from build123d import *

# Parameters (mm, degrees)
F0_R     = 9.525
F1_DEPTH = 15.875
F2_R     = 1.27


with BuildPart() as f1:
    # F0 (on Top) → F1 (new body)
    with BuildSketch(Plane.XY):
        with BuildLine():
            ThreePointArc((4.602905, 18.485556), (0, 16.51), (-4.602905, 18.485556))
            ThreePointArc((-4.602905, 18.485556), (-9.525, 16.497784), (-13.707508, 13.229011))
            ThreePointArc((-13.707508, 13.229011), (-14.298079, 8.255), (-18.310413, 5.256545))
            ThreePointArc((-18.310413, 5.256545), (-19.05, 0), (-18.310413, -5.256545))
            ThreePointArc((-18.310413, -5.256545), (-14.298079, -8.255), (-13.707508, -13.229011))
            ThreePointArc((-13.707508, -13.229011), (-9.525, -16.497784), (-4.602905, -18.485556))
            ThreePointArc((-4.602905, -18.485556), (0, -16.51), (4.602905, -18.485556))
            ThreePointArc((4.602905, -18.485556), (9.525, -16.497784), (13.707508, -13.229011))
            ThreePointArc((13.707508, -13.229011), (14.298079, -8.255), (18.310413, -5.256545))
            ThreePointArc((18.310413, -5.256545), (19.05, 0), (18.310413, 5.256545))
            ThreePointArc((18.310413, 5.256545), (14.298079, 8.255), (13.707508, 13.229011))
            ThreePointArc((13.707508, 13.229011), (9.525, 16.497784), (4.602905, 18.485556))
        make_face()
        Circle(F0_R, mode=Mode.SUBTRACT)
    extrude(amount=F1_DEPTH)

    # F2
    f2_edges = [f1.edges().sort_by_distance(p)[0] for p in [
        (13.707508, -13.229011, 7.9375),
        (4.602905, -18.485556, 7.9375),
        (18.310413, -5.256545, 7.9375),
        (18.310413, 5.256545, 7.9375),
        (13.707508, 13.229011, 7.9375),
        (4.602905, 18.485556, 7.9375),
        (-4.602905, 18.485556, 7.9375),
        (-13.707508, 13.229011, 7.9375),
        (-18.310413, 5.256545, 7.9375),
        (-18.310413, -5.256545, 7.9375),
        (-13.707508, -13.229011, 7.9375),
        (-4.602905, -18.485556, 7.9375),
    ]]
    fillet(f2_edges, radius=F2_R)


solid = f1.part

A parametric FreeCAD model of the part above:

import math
import FreeCAD as App
import Part
import Sketcher
Q = App.Units.Quantity


def edges_at(feature, points):
    """Names of the edges that pass closest to the given points."""
    edges = feature.Shape.Edges
    near = lambda p: min(range(len(edges)), key=lambda i: edges[i].distToShape(Part.Vertex(*p))[0])
    return sorted({f"Edge{near(p) + 1}" for p in points})

doc = App.newDocument("Part")
params = doc.addObject("Spreadsheet::Sheet", "Params")
for row, (alias, value) in enumerate([
    ("sketch1_diameter", "0.75 in"),
    ("sketch1_radius", "0.2499999 in"),
    ("pad1_length", "0.625 in"),
    ("fillet_radius", "0.05 in"),
], start=1):
    params.set(f"A{row}", alias)
    params.set(f"B{row}", "=" + value)
    params.setAlias(f"B{row}", alias)

body = doc.addObject("PartDesign::Body", "Body")

# Sketch on XY plane
sketch1 = body.newObject("Sketcher::SketchObject", "Sketch")
sketch1.AttachmentSupport = (doc.getObject("XY_Plane"), [""])
sketch1.MapMode = "FlatFace"
sketch1.addGeometry([
    Part.ArcOfCircle(Part.Circle(App.Vector(0, 23, 0), App.Vector(0, 0, 1), 6), math.radians(-136), math.radians(-44)),  # 0
    Part.ArcOfCircle(Part.Circle(App.Vector(0, 0, 0), App.Vector(0, 0, 1), 19), math.radians(104), math.radians(136)),  # 1
    Part.ArcOfCircle(Part.Circle(App.Vector(-20, 11, 0), App.Vector(0, 0, 1), 6), math.radians(-76), math.radians(16)),  # 2
    Part.ArcOfCircle(Part.Circle(App.Vector(0, 0, 0), App.Vector(0, 0, 1), 19), math.radians(164), math.radians(196)),  # 3
    Part.ArcOfCircle(Part.Circle(App.Vector(-20, -11, 0), App.Vector(0, 0, 1), 6), math.radians(-16), math.radians(76)),  # 4
    Part.ArcOfCircle(Part.Circle(App.Vector(0, 0, 0), App.Vector(0, 0, 1), 19), math.radians(-136), math.radians(-104)),  # 5
    Part.ArcOfCircle(Part.Circle(App.Vector(0, -23, 0), App.Vector(0, 0, 1), 6), math.radians(44), math.radians(136)),  # 6
    Part.ArcOfCircle(Part.Circle(App.Vector(0, 0, 0), App.Vector(0, 0, 1), 19), math.radians(-76), math.radians(-44)),  # 7
    Part.ArcOfCircle(Part.Circle(App.Vector(20, -11, 0), App.Vector(0, 0, 1), 6), math.radians(104), math.radians(196)),  # 8
    Part.ArcOfCircle(Part.Circle(App.Vector(0, 0, 0), App.Vector(0, 0, 1), 19), math.radians(-16), math.radians(16)),  # 9
    Part.ArcOfCircle(Part.Circle(App.Vector(20, 11, 0), App.Vector(0, 0, 1), 6), math.radians(164), math.radians(256)),  # 10
    Part.ArcOfCircle(Part.Circle(App.Vector(0, 0, 0), App.Vector(0, 0, 1), 19), math.radians(44), math.radians(76)),  # 11
    Part.Circle(App.Vector(0, 0, 0), App.Vector(0, 0, 1), 10),  # 12
], False)
sketch1.addConstraint([
    Sketcher.Constraint("Coincident", 0, 1, 1, 1),
    Sketcher.Constraint("Coincident", 1, 2, 2, 2),
    Sketcher.Constraint("Coincident", 2, 1, 3, 1),
    Sketcher.Constraint("Coincident", 3, 2, 4, 2),
    Sketcher.Constraint("Coincident", 4, 1, 5, 1),
    Sketcher.Constraint("Coincident", 5, 2, 6, 2),
    Sketcher.Constraint("Coincident", 6, 1, 7, 1),
    Sketcher.Constraint("Coincident", 7, 2, 8, 2),
    Sketcher.Constraint("Coincident", 8, 1, 9, 1),
    Sketcher.Constraint("Coincident", 9, 2, 10, 2),
    Sketcher.Constraint("Coincident", 10, 1, 11, 1),
    Sketcher.Constraint("Coincident", 11, 2, 0, 2),
    Sketcher.Constraint("Coincident", 1, 3, -1, 1),
    Sketcher.Constraint("Coincident", 3, 3, -1, 1),
    Sketcher.Constraint("Coincident", 5, 3, -1, 1),
    Sketcher.Constraint("Coincident", 7, 3, -1, 1),
    Sketcher.Constraint("Coincident", 9, 3, -1, 1),
    Sketcher.Constraint("Coincident", 11, 3, -1, 1),
    Sketcher.Constraint("Coincident", 12, 3, -1, 1),
    Sketcher.Constraint("Equal", 0, 2),
    Sketcher.Constraint("Equal", 2, 4),
    Sketcher.Constraint("Equal", 1, 5),
    Sketcher.Constraint("Equal", 4, 6),
    Sketcher.Constraint("Equal", 5, 7),
    Sketcher.Constraint("Equal", 6, 8),
    Sketcher.Constraint("Equal", 3, 9),
    Sketcher.Constraint("Equal", 8, 10),
    Sketcher.Constraint("Equal", 7, 11),
    Sketcher.Constraint("Symmetric", 0, 3, 6, 3, -1, 1),
    Sketcher.Constraint("Symmetric", 2, 3, 8, 3, -1, 1),
    Sketcher.Constraint("Symmetric", 4, 3, 10, 3, -1, 1),
    Sketcher.Constraint("Symmetric", 4, 3, 8, 3, -2),
    Sketcher.Constraint("PointOnObject", 0, 3, -2),
    Sketcher.Constraint("Diameter", 12, Q("0.75 in")),
    Sketcher.Constraint("Radius", 0, Q("0.2499999 in")),
    Sketcher.Constraint("DistanceY", -1, 1, 0, 3, Q("0.8999999 in")),
    Sketcher.Constraint("DistanceY", 4, 3, 2, 3, Q("0.9 in")),
    Sketcher.Constraint("Radius", 1, Q("19.050006 mm")),
    Sketcher.Constraint("Radius", 3, Q("19.049993 mm")),
    Sketcher.Constraint("DistanceX", 1, 2, 3, 3, Q("13.707501 mm")),
])
sketch1.setExpression("Constraints[33]", "Params.sketch1_diameter")
sketch1.setExpression("Constraints[34]", "Params.sketch1_radius")
pad1 = body.newObject("PartDesign::Pad", "Pad")
pad1.Profile = sketch1
pad1.setExpression("Length", "Params.pad1_length")
doc.recompute()

fillet = body.newObject("PartDesign::Fillet", "Fillet")
fillet.Base = (pad1, edges_at(pad1, [
    (13.708, -13.229, 7.938),
    (4.603, -18.486, 7.938),
    (18.31, -5.257, 7.938),
    (18.31, 5.257, 7.938),
    (13.708, 13.229, 7.938),
    (4.603, 18.486, 7.938),
    (-4.603, 18.486, 7.938),
    (-13.708, 13.229, 7.938),
    (-18.31, 5.257, 7.938),
    (-18.31, -5.257, 7.938),
    (-13.708, -13.229, 7.938),
    (-4.603, -18.486, 7.938),
]))
fillet.setExpression("Radius", "Params.fillet_radius")

doc.recompute()
